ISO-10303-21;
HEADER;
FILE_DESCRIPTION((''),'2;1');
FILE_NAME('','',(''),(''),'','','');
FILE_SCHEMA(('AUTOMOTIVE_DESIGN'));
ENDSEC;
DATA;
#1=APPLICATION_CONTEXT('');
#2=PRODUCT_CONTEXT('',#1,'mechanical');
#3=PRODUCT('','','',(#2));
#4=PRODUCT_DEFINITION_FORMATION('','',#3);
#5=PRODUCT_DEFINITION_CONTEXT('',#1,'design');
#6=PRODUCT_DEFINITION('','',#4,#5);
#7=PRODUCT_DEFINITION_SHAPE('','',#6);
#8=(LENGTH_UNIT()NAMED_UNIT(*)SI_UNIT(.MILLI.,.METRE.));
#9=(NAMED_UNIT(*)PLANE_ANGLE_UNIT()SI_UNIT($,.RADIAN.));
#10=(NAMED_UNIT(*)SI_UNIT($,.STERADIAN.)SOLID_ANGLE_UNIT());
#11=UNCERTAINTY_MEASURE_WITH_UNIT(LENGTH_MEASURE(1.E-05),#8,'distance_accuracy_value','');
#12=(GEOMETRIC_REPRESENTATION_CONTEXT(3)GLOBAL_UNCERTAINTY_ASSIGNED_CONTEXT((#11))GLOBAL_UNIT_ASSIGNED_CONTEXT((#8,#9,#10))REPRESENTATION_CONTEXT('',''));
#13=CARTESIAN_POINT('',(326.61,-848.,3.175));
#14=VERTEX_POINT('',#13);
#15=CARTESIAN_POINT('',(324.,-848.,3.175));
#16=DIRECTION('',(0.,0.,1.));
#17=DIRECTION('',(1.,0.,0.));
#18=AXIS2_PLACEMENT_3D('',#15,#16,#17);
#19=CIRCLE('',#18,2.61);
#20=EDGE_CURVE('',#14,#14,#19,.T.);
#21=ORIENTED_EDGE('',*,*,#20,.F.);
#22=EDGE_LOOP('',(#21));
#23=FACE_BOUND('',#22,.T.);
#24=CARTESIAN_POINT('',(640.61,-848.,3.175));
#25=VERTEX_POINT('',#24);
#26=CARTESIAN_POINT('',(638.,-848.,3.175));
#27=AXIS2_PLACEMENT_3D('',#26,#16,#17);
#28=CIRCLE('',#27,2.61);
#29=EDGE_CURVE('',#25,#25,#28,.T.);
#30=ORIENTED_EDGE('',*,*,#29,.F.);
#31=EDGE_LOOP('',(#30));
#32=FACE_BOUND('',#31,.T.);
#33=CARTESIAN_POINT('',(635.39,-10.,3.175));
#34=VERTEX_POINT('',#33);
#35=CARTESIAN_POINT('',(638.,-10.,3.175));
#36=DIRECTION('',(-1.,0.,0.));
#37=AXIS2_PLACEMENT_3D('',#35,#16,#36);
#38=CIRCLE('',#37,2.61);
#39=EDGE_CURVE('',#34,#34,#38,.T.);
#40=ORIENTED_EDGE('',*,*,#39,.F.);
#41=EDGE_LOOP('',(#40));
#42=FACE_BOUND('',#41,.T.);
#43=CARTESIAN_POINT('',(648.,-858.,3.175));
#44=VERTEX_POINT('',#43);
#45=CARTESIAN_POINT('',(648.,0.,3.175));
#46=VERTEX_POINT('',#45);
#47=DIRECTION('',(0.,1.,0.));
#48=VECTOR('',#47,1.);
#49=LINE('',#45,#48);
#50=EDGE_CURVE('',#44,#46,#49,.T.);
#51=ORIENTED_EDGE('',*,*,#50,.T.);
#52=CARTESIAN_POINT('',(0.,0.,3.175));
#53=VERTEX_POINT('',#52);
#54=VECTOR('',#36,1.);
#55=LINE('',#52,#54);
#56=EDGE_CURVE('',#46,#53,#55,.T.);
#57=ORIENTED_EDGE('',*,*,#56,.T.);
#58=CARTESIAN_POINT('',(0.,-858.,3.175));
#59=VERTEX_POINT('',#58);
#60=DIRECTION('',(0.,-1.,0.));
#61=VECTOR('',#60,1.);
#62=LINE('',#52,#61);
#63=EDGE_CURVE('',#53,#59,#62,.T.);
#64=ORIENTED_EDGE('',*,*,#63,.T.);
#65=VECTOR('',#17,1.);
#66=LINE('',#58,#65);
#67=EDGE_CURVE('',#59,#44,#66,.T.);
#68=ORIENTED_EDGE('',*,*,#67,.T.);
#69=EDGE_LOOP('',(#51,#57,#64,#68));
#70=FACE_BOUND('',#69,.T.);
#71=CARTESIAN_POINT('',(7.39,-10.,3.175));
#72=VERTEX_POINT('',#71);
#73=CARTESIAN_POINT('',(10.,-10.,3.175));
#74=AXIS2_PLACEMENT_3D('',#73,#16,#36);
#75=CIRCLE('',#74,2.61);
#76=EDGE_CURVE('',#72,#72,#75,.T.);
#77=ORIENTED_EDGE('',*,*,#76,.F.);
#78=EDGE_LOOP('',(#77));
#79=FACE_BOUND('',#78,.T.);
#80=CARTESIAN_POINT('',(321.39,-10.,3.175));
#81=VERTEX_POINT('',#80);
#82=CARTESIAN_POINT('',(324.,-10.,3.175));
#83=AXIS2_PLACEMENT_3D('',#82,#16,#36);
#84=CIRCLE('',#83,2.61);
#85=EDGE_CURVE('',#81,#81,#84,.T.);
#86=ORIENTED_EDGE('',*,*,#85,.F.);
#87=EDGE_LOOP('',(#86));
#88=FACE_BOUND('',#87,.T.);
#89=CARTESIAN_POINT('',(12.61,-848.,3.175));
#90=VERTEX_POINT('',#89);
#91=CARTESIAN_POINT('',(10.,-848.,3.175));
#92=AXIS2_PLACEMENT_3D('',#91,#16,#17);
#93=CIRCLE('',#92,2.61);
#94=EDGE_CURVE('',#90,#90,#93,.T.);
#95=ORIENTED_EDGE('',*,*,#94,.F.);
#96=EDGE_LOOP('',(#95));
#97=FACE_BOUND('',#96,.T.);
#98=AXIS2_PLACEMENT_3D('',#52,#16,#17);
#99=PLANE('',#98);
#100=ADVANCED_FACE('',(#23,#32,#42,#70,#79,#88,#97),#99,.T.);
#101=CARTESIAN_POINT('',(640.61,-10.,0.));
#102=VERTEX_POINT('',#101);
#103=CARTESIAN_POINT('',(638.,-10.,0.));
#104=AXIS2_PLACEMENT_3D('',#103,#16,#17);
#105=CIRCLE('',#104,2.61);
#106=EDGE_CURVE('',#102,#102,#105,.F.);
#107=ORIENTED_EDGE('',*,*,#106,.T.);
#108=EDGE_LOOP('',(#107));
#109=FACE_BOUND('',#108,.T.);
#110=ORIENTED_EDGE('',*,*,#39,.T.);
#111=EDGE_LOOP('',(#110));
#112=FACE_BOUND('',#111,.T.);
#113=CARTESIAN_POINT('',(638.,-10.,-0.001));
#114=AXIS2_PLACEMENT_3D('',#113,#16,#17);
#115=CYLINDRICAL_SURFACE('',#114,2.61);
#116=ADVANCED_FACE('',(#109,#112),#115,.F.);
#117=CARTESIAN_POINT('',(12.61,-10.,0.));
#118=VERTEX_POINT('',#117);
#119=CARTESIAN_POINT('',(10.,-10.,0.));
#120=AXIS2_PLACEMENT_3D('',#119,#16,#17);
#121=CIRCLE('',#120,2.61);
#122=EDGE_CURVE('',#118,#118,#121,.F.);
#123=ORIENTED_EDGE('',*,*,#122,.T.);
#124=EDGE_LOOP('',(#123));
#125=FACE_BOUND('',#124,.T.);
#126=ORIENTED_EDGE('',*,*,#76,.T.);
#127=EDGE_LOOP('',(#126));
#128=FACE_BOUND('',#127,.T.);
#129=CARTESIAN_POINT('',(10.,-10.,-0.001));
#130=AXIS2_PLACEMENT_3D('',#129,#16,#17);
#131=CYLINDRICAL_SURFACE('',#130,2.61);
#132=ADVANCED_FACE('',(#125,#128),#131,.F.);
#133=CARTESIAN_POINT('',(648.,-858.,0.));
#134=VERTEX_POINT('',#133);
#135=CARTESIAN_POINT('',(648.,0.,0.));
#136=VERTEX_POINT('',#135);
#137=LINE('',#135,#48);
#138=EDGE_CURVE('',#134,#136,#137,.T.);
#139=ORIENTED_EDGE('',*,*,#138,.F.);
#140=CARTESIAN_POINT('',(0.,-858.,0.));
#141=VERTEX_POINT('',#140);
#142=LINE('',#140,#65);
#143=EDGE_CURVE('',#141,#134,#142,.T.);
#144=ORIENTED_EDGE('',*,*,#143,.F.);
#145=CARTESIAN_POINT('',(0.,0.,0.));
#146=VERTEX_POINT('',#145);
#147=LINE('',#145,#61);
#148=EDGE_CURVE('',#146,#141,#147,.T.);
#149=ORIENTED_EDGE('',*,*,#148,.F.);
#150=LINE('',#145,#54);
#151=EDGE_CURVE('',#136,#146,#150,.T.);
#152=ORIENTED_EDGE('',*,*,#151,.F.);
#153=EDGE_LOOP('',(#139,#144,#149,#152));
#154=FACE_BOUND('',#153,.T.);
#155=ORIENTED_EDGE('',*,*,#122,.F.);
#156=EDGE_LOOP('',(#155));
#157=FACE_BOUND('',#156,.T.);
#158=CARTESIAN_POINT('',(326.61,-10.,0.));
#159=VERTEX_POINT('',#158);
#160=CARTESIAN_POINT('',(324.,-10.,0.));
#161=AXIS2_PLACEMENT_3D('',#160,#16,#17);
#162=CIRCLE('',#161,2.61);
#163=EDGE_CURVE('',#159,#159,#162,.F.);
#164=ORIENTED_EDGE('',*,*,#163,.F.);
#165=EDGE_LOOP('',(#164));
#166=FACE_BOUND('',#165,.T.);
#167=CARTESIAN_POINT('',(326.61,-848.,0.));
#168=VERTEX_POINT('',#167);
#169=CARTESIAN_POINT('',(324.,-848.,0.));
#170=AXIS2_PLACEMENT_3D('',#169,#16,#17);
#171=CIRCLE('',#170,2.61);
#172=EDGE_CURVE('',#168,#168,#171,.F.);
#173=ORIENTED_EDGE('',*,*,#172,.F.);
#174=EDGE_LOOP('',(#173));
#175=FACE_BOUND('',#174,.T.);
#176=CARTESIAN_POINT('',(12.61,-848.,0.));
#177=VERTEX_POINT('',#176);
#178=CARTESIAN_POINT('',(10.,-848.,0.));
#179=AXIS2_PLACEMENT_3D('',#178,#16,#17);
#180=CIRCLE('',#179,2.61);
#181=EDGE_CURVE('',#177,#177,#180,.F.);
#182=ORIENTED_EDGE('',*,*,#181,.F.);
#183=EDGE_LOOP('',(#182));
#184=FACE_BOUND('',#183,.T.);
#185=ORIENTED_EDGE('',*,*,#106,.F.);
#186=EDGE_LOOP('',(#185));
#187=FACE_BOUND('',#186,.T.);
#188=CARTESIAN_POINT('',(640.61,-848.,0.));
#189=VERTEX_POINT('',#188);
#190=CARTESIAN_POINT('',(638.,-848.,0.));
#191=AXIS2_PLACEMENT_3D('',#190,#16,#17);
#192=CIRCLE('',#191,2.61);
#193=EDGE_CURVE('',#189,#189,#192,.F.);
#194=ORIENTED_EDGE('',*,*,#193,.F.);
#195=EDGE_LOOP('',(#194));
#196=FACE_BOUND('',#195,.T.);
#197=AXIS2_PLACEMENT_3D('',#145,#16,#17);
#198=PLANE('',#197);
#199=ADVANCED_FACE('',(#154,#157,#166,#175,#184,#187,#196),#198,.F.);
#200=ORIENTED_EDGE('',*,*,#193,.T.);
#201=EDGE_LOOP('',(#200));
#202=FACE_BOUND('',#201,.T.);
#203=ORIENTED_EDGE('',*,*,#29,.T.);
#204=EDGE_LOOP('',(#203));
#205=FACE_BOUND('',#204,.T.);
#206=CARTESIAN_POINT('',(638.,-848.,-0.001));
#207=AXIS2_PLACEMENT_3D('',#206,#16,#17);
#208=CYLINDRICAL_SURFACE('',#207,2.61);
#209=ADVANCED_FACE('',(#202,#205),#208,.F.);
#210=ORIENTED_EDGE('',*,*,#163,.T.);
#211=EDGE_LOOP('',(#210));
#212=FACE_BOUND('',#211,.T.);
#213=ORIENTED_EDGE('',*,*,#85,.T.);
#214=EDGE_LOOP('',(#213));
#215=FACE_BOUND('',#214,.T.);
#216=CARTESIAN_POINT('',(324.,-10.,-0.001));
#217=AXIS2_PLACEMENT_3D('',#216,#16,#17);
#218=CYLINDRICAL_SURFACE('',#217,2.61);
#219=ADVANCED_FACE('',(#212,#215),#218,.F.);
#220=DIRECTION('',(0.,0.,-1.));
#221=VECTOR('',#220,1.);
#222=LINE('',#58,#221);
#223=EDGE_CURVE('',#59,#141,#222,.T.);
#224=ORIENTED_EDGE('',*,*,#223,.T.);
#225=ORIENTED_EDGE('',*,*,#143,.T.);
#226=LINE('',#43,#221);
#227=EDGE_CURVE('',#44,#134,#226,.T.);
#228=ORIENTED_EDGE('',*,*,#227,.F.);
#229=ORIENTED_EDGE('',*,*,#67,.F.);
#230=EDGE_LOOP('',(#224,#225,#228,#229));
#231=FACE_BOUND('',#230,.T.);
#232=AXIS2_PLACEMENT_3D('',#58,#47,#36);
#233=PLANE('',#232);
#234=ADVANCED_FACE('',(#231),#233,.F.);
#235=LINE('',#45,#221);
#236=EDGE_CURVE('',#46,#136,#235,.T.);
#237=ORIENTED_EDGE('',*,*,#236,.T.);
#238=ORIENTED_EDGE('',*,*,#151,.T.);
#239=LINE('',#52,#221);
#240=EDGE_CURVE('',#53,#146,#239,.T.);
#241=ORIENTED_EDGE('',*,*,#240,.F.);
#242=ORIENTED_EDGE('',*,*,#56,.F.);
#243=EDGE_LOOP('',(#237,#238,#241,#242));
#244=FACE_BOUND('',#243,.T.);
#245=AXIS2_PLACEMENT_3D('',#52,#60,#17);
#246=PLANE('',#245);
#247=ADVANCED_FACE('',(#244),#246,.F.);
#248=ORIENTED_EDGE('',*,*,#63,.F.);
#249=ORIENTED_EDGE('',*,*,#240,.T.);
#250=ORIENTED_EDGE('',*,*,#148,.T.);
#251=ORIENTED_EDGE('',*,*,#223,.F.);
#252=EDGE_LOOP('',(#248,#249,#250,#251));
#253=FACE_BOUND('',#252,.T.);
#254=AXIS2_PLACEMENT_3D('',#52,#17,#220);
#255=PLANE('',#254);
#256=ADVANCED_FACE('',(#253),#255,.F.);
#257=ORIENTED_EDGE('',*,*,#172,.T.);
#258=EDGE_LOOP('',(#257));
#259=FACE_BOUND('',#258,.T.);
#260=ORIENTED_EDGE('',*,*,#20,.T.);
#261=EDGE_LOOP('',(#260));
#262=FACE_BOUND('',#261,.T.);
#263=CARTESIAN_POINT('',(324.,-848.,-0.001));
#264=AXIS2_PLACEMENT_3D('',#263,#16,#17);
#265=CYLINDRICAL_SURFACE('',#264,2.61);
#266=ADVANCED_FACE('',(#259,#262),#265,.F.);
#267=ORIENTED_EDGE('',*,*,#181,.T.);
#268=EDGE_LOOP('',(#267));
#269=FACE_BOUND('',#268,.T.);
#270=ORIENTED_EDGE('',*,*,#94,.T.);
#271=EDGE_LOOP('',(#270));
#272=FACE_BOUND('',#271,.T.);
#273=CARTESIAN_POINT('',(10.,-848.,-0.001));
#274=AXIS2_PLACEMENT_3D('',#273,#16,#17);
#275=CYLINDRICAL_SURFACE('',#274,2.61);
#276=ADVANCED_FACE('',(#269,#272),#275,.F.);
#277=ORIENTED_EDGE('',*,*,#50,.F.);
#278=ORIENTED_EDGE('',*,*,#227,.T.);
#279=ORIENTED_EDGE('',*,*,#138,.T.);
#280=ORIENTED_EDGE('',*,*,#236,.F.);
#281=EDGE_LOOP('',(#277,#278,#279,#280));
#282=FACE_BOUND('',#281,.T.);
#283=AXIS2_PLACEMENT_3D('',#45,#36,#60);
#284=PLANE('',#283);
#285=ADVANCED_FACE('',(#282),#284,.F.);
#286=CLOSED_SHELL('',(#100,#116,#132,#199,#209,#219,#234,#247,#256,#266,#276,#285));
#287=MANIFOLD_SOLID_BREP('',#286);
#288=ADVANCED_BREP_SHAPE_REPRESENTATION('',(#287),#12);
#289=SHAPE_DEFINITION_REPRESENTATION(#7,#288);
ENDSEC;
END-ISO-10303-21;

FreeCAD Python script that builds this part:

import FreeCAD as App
import Part
import Sketcher
from FreeCAD import Vector
Q = App.Units.Quantity

doc = App.newDocument("Part")
body = doc.addObject("PartDesign::Body", "Body")

sketch1 = body.newObject("Sketcher::SketchObject", "Sketch")
sketch1.AttachmentSupport = (doc.getObject("XY_Plane"), [""])
sketch1.MapMode = "FlatFace"
sketch1.addGeometry([
    Part.LineSegment(Vector(0, 0, 0), Vector(0, -858, 0)),
    Part.LineSegment(Vector(0, -858, 0), Vector(648, -858, 0)),
    Part.LineSegment(Vector(648, -858, 0), Vector(648, 0, 0)),
    Part.LineSegment(Vector(648, 0, 0), Vector(0, 0, 0)),
], False)
sketch1.addConstraint([
    Sketcher.Constraint("Coincident", 0, 2, 1, 1),
    Sketcher.Constraint("Coincident", 1, 2, 2, 1),
    Sketcher.Constraint("Coincident", 2, 2, 3, 1),
    Sketcher.Constraint("Coincident", 3, 2, 0, 1),
    Sketcher.Constraint("Vertical", 0),
    Sketcher.Constraint("Horizontal", 1),
    Sketcher.Constraint("Vertical", 2),
    Sketcher.Constraint("Horizontal", 3),
    Sketcher.Constraint("Coincident", 3, 2, -1, 1),
    Sketcher.Constraint("DistanceX", 1, 1, 1, 2, Q("648 mm")),
    Sketcher.Constraint("DistanceY", 0, 2, 0, 1, Q("858 mm")),
])
pad1 = body.newObject("PartDesign::Pad", "Pad")
pad1.Profile = sketch1
pad1.Length = 3.175

sketch2 = body.newObject("Sketcher::SketchObject", "Sketch001")
sketch2.AttachmentSupport = (doc.getObject("XY_Plane"), [""])
sketch2.MapMode = "FlatFace"
sketch2.AttachmentOffset = App.Placement(Vector(0, 0, 3.175), App.Rotation())
sketch2.addGeometry(Part.Circle(Vector(10, -848, 0), Vector(0, 0, 1), 2.6), False)
sketch2.addConstraint([
    Sketcher.Constraint("Diameter", 0, Q("5.22 mm")),
    Sketcher.Constraint("DistanceX", -1, 1, 0, 3, Q("10 mm")),
    Sketcher.Constraint("DistanceY", 0, 3, -1, 1, Q("848 mm")),
])
pocket1 = body.newObject("PartDesign::Pocket", "Pocket")
pocket1.Profile = sketch2
pocket1.Type = "UpToFirst"

sketch3 = body.newObject("Sketcher::SketchObject", "Sketch002")
sketch3.AttachmentSupport = (doc.getObject("XY_Plane"), [""])
sketch3.MapMode = "FlatFace"
sketch3.AttachmentOffset = App.Placement(Vector(0, 0, 3.175), App.Rotation())
sketch3.addGeometry(Part.Circle(Vector(324, -848, 0), Vector(0, 0, 1), 2.6), False)
sketch3.addConstraint([
    Sketcher.Constraint("Diameter", 0, Q("5.22 mm")),
    Sketcher.Constraint("DistanceX", -1, 1, 0, 3, Q("324 mm")),
    Sketcher.Constraint("DistanceY", 0, 3, -1, 1, Q("848 mm")),
])
pocket2 = body.newObject("PartDesign::Pocket", "Pocket001")
pocket2.Profile = sketch3
pocket2.Type = "UpToFirst"

sketch4 = body.newObject("Sketcher::SketchObject", "Sketch003")
sketch4.AttachmentSupport = (doc.getObject("XY_Plane"), [""])
sketch4.MapMode = "FlatFace"
sketch4.AttachmentOffset = App.Placement(Vector(0, 0, 3.175), App.Rotation())
sketch4.addGeometry(Part.Circle(Vector(638, -848, 0), Vector(0, 0, 1), 2.6), False)
sketch4.addConstraint([
    Sketcher.Constraint("Diameter", 0, Q("5.22 mm")),
    Sketcher.Constraint("DistanceX", -1, 1, 0, 3, Q("638 mm")),
    Sketcher.Constraint("DistanceY", 0, 3, -1, 1, Q("848 mm")),
])
pocket3 = body.newObject("PartDesign::Pocket", "Pocket002")
pocket3.Profile = sketch4
pocket3.Type = "UpToFirst"

sketch5 = body.newObject("Sketcher::SketchObject", "Sketch004")
sketch5.AttachmentSupport = (doc.getObject("XY_Plane"), [""])
sketch5.MapMode = "FlatFace"
sketch5.AttachmentOffset = App.Placement(Vector(0, 0, 3.175), App.Rotation())
sketch5.addGeometry(Part.Circle(Vector(638, -10, 0), Vector(0, 0, 1), 2.6), False)
sketch5.addConstraint([
    Sketcher.Constraint("Diameter", 0, Q("5.22 mm")),
    Sketcher.Constraint("DistanceX", -1, 1, 0, 3, Q("638 mm")),
    Sketcher.Constraint("DistanceY", 0, 3, -1, 1, Q("10 mm")),
])
pocket4 = body.newObject("PartDesign::Pocket", "Pocket003")
pocket4.Profile = sketch5
pocket4.Type = "UpToFirst"

sketch6 = body.newObject("Sketcher::SketchObject", "Sketch005")
sketch6.AttachmentSupport = (doc.getObject("XY_Plane"), [""])
sketch6.MapMode = "FlatFace"
sketch6.AttachmentOffset = App.Placement(Vector(0, 0, 3.175), App.Rotation())
sketch6.addGeometry(Part.Circle(Vector(324, -10, 0), Vector(0, 0, 1), 2.6), False)
sketch6.addConstraint([
    Sketcher.Constraint("Diameter", 0, Q("5.22 mm")),
    Sketcher.Constraint("DistanceX", -1, 1, 0, 3, Q("324 mm")),
    Sketcher.Constraint("DistanceY", 0, 3, -1, 1, Q("10 mm")),
])
pocket5 = body.newObject("PartDesign::Pocket", "Pocket004")
pocket5.Profile = sketch6
pocket5.Type = "UpToFirst"

sketch7 = body.newObject("Sketcher::SketchObject", "Sketch006")
sketch7.AttachmentSupport = (doc.getObject("XY_Plane"), [""])
sketch7.MapMode = "FlatFace"
sketch7.AttachmentOffset = App.Placement(Vector(0, 0, 3.175), App.Rotation())
sketch7.addGeometry(Part.Circle(Vector(10, -10, 0), Vector(0, 0, 1), 2.6), False)
sketch7.addConstraint([
    Sketcher.Constraint("Diameter", 0, Q("5.22 mm")),
    Sketcher.Constraint("DistanceX", -1, 1, 0, 3, Q("10 mm")),
    Sketcher.Constraint("DistanceY", 0, 3, -1, 1, Q("10 mm")),
])
pocket6 = body.newObject("PartDesign::Pocket", "Pocket005")
pocket6.Profile = sketch7
pocket6.Type = "UpToFirst"

doc.recompute()
